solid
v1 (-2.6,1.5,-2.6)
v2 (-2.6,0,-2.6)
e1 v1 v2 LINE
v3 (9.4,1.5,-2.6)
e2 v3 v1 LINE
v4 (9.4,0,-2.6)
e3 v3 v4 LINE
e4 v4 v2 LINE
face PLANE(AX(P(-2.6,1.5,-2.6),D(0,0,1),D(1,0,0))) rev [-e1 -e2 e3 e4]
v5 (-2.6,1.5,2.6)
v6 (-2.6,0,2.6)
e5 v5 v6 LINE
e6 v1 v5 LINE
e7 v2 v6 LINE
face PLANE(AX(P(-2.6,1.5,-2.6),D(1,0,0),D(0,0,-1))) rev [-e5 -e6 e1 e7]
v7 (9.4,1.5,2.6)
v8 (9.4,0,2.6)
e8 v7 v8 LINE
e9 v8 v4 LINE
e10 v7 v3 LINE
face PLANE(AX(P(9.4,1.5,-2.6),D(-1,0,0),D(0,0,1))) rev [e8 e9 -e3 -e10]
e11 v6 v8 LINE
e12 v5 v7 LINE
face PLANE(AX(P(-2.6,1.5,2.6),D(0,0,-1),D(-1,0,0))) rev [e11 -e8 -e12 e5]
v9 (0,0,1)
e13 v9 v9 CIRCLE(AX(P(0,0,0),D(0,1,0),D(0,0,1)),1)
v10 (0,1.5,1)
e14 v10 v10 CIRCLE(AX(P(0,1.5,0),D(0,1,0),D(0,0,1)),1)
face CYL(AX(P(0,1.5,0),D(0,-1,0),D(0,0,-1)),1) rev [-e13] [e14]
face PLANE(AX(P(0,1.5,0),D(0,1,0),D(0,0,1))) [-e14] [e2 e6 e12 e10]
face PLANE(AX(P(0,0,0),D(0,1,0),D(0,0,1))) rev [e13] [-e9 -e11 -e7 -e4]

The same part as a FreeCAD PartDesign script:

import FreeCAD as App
import Part
import Sketcher
from FreeCAD import Vector
Q = App.Units.Quantity

doc = App.newDocument("Part")
params = doc.addObject("Spreadsheet::Sheet", "Params")
for row, (alias, value) in enumerate([
    ("sketch1_diameter", "2 mm"),
    ("sketch1_width", "12 mm"),
    ("sketch1_height", "5.2 mm"),
    ("pad1_length", "1.5 mm"),
], start=1):
    params.set(f"A{row}", alias)
    params.set(f"B{row}", "=" + value)
    params.setAlias(f"B{row}", alias)

body = doc.addObject("PartDesign::Body", "Body")

# Sketch on XZ plane
sketch1 = body.newObject("Sketcher::SketchObject", "Sketch")
sketch1.AttachmentSupport = (doc.getObject("XZ_Plane"), [""])
sketch1.MapMode = "FlatFace"
sketch1.addGeometry(Part.LineSegment(Vector(-2.6, -2.6, 0), Vector(-2.6, 2.6, 0)), False)
sketch1.addGeometry(Part.LineSegment(Vector(-2.6, 2.6, 0), Vector(9.4, 2.6, 0)), False)
sketch1.addGeometry(Part.LineSegment(Vector(9.4, 2.6, 0), Vector(9.4, -2.6, 0)), False)
sketch1.addGeometry(Part.LineSegment(Vector(9.4, -2.6, 0), Vector(-2.6, -2.6, 0)), False)
sketch1.addGeometry(Part.Circle(Vector(0, 0, 0), Vector(0, 0, 1), 1), False)
sketch1.addConstraint(Sketcher.Constraint("Coincident", 0, 2, 1, 1))
sketch1.addConstraint(Sketcher.Constraint("Coincident", 1, 2, 2, 1))
sketch1.addConstraint(Sketcher.Constraint("Coincident", 2, 2, 3, 1))
sketch1.addConstraint(Sketcher.Constraint("Coincident", 3, 2, 0, 1))
sketch1.addConstraint(Sketcher.Constraint("Vertical", 0))
sketch1.addConstraint(Sketcher.Constraint("Horizontal", 1))
sketch1.addConstraint(Sketcher.Constraint("Vertical", 2))
sketch1.addConstraint(Sketcher.Constraint("Horizontal", 3))
sketch1.addConstraint(Sketcher.Constraint("Coincident", 4, 3, -1, 1))
sketch1.addConstraint(Sketcher.Constraint("Diameter", 4, Q("2 mm")))
sketch1.addConstraint(Sketcher.Constraint("DistanceX", 1, 1, 1, 2, Q("12 mm")))
sketch1.addConstraint(Sketcher.Constraint("DistanceY", 0, 1, 0, 2, Q("5.2 mm")))
sketch1.addConstraint(Sketcher.Constraint("DistanceX", 0, 2, -1, 1, Q("2.6 mm")))
sketch1.addConstraint(Sketcher.Constraint("DistanceY", -1, 1, 0, 2, Q("2.6 mm")))
sketch1.setExpression("Constraints[9]", "Params.sketch1_diameter")
sketch1.setExpression("Constraints[10]", "Params.sketch1_width")
sketch1.setExpression("Constraints[11]", "Params.sketch1_height")
pad1 = body.newObject("PartDesign::Pad", "Pad")
pad1.Profile = sketch1
pad1.setExpression("Length", "Params.pad1_length")
pad1.Reversed = True

doc.recompute()
